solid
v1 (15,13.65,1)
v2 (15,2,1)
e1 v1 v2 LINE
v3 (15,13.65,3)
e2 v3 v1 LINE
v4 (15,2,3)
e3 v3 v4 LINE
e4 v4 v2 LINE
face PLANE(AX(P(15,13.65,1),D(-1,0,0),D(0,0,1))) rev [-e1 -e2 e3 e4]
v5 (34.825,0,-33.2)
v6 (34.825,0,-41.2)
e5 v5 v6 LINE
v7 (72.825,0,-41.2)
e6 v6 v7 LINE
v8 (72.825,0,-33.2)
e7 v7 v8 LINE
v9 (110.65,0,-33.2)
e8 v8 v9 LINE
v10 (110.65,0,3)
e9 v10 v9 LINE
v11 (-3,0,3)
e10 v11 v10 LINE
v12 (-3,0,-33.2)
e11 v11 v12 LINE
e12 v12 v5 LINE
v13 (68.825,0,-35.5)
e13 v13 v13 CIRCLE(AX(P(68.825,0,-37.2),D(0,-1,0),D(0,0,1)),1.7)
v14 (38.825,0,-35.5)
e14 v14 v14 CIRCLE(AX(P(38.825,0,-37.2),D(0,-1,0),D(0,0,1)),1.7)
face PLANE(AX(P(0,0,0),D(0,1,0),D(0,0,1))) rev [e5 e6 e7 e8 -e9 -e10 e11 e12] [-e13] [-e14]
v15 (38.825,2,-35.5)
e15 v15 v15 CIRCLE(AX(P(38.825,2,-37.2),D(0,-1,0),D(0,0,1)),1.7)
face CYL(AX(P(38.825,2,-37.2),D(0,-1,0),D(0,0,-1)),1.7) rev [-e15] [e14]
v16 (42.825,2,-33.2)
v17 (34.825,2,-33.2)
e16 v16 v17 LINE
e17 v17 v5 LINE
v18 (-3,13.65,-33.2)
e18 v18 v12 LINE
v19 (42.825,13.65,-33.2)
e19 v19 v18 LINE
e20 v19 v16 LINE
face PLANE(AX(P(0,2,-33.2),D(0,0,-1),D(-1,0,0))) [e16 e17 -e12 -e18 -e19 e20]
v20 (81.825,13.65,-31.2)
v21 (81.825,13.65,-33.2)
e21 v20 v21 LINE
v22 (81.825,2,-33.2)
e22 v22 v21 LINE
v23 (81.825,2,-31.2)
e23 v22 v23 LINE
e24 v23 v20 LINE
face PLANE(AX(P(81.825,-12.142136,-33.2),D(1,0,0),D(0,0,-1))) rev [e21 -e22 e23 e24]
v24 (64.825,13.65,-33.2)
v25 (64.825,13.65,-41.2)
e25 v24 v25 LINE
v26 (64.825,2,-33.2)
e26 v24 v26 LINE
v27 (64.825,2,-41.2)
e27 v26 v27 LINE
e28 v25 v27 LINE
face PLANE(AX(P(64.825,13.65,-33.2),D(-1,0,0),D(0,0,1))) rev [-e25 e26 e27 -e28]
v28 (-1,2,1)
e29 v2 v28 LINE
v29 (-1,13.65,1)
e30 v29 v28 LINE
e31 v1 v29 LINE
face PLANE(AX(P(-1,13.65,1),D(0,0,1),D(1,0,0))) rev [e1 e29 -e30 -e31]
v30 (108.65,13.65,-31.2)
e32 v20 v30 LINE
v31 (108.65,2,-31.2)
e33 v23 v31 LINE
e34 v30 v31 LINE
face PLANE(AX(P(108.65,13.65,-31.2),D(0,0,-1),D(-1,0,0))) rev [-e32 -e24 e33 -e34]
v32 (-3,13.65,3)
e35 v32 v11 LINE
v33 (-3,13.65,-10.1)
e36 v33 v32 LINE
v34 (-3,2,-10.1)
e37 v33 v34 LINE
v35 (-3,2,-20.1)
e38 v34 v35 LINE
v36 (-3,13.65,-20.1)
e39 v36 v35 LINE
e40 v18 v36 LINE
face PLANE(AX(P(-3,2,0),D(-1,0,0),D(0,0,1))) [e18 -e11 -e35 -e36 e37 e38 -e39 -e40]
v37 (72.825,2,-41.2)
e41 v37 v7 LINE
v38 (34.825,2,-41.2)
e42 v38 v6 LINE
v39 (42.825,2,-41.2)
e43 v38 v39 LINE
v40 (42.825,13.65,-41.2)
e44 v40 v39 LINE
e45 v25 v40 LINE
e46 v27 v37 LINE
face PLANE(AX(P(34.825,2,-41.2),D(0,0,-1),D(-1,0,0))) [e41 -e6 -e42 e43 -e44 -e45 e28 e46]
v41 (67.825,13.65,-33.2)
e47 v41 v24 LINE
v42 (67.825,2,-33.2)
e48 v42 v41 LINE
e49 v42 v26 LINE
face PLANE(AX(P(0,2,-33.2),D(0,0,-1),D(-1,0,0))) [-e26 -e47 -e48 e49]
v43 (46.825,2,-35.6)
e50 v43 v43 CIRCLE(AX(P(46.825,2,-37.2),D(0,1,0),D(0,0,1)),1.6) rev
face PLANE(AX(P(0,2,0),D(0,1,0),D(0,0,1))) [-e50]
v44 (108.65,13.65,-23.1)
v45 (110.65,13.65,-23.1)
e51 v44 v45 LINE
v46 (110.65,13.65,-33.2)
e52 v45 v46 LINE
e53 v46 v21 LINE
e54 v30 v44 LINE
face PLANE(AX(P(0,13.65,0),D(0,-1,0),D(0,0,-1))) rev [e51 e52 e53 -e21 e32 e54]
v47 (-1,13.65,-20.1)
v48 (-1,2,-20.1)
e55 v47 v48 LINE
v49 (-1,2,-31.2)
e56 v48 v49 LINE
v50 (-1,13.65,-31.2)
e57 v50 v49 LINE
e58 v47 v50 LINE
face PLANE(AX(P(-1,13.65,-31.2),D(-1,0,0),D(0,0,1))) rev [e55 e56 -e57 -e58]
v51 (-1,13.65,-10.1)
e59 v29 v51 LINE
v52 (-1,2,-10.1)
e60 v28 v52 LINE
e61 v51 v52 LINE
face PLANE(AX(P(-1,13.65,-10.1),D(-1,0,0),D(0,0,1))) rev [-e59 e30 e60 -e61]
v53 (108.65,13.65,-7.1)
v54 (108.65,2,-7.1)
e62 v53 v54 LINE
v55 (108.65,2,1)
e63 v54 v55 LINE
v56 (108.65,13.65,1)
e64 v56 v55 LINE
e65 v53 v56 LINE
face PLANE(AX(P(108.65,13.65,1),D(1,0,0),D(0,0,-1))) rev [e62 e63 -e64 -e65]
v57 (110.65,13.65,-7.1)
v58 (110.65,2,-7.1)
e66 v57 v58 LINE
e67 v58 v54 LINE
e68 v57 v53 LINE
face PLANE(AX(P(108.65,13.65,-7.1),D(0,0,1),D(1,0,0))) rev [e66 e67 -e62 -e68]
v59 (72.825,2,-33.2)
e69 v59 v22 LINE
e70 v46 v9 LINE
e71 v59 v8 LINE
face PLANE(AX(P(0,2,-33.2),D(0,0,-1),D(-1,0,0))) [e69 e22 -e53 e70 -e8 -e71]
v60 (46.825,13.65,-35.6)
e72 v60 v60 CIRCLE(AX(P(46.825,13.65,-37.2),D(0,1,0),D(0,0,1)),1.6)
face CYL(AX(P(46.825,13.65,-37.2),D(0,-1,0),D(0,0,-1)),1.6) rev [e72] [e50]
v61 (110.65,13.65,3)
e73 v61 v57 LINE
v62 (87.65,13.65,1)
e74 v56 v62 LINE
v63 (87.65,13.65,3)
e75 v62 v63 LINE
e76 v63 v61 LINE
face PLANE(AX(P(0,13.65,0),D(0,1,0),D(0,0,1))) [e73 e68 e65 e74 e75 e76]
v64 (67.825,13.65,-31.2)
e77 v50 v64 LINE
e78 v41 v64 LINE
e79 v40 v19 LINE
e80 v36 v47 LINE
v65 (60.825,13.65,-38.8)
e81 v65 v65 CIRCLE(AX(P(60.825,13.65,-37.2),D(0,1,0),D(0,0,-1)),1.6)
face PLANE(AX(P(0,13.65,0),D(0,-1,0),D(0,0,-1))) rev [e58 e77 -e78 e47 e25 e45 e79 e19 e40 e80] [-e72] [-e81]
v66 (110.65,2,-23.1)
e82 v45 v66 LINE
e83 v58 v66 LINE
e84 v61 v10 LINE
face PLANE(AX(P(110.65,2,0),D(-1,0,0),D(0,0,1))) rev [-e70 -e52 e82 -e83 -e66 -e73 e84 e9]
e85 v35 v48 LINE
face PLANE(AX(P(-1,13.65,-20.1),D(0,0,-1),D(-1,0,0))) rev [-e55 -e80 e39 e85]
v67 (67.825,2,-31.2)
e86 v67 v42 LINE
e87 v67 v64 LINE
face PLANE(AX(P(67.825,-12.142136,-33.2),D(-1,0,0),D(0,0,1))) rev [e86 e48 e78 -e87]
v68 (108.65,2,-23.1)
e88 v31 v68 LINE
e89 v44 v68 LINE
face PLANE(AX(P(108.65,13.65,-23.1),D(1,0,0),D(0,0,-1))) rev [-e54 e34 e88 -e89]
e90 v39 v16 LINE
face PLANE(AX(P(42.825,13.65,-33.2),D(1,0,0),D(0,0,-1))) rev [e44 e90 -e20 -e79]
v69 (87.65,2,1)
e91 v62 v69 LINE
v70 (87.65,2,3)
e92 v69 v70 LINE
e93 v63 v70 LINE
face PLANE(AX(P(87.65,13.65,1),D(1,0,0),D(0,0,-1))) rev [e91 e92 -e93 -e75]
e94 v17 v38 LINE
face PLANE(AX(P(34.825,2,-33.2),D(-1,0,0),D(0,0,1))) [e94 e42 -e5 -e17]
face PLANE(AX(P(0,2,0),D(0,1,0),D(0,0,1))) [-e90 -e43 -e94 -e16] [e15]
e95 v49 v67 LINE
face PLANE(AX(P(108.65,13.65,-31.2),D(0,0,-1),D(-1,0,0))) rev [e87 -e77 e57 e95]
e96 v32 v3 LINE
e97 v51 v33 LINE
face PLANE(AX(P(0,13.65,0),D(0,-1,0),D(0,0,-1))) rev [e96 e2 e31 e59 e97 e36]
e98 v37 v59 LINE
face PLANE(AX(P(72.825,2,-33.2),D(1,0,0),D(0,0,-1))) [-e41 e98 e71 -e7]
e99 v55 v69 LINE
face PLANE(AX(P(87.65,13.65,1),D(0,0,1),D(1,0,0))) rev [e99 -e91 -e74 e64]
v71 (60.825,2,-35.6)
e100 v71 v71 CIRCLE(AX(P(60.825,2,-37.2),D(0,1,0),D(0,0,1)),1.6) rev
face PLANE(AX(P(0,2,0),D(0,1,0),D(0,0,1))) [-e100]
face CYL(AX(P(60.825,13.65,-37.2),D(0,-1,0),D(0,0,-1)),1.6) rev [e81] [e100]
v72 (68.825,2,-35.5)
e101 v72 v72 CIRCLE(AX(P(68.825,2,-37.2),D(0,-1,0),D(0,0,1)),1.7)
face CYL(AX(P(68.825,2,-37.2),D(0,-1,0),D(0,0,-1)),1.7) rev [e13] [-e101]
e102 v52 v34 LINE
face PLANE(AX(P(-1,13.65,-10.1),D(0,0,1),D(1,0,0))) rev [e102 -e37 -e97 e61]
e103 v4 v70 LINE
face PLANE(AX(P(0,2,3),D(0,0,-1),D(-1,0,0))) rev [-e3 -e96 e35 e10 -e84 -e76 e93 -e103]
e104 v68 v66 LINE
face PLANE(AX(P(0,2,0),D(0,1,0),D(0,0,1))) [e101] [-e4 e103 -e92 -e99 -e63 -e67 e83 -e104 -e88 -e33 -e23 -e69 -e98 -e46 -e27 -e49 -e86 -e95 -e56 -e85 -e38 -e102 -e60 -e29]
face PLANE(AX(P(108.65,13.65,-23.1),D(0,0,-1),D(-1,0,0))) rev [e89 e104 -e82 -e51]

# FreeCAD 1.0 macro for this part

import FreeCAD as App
import Part
import Sketcher
from FreeCAD import Vector

doc = App.newDocument("Part")
params = doc.addObject("Spreadsheet::Sheet", "Params")
for row, (alias, value) in enumerate([
    ("sketch1_height", "36.2 mm"),
    ("sketch1_width", "113.65 mm"),
    ("pad1_length", "2 mm"),
    ("sketch2_width", "16 mm"),
    ("sketch2_width2", "2 mm"),
    ("sketch2_width3", "21 mm"),
    ("sketch2_height", "11.1 mm"),
    ("sketch2_height2", "8.1 mm"),
    ("pad2_length", "11.65 mm"),
    ("sketch3_diameter", "3.4 mm"),
    ("sketch3_width", "38 mm"),
    ("sketch3_height", "8 mm"),
    ("pad3_length", "2 mm"),
    ("sketch4_diameter", "3.2 mm"),
    ("sketch4_width", "22 mm"),
    ("sketch4_height", "8 mm"),
    ("pad4_length", "11.65 mm"),
    ("sketch5_width", "14 mm"),
    ("sketch5_height", "2 mm"),
    ("pocket1_length", "11.65 mm"),
], start=1):
    params.set(f"A{row}", alias)
    params.set(f"B{row}", "=" + value)
    params.setAlias(f"B{row}", alias)

body = doc.addObject("PartDesign::Body", "Body")

sketch1 = body.newObject("Sketcher::SketchObject", "Sketch")
sketch1.AttachmentSupport = (doc.getObject("XZ_Plane"), [""])
sketch1.MapMode = "FlatFace"
sketch1.addGeometry([
    Part.LineSegment(Vector(-3, -33, 0), Vector(-3, 3, 0)),
    Part.LineSegment(Vector(-3, 3, 0), Vector(111, 3, 0)),
    Part.LineSegment(Vector(111, 3, 0), Vector(111, -33, 0)),
    Part.LineSegment(Vector(111, -33, 0), Vector(-3, -33, 0)),
], False)
sketch1.addConstraint([
    Sketcher.Constraint("Coincident", 0, 2, 1, 1),
    Sketcher.Constraint("Coincident", 1, 2, 2, 1),
    Sketcher.Constraint("Coincident", 2, 2, 3, 1),
    Sketcher.Constraint("Coincident", 3, 2, 0, 1),
    Sketcher.Constraint("Vertical", 0),
    Sketcher.Constraint("Horizontal", 1),
    Sketcher.Constraint("Vertical", 2),
    Sketcher.Constraint("Horizontal", 3),
    Sketcher.Constraint("DistanceY", 0, 1, 0, 2, 36.2),
    Sketcher.Constraint("DistanceX", 0, 2, -1, 1, 3.0),
    Sketcher.Constraint("DistanceY", -1, 1, 0, 2, 3.0),
    Sketcher.Constraint("DistanceX", 1, 1, 1, 2, 113.65),
])
sketch1.setExpression("Constraints[8]", "Params.sketch1_height")
sketch1.setExpression("Constraints[11]", "Params.sketch1_width")
pad1 = body.newObject("PartDesign::Pad", "Pad")
pad1.Profile = sketch1
pad1.setExpression("Length", "Params.pad1_length")
pad1.Reversed = True

sketch2 = body.newObject("Sketcher::SketchObject", "Sketch001")
sketch2.AttachmentSupport = (doc.getObject("XZ_Plane"), [""])
sketch2.MapMode = "FlatFace"
sketch2.AttachmentOffset = App.Placement(Vector(0, 0, -2), App.Rotation())
sketch2.addGeometry([
    Part.LineSegment(Vector(15, 3, 0), Vector(15, 1, 0)),
    Part.LineSegment(Vector(15, 1, 0), Vector(-1, 1, 0)),
    Part.LineSegment(Vector(-1, 1, 0), Vector(-1, -10.1, 0)),
    Part.LineSegment(Vector(-1, -10.1, 0), Vector(-3, -10.1, 0)),
    Part.LineSegment(Vector(-3, -10.1, 0), Vector(-3, 3, 0)),
    Part.LineSegment(Vector(-3, 3, 0), Vector(15, 3, 0)),
    Part.LineSegment(Vector(-3, -20.1, 0), Vector(-1, -20.1, 0)),
    Part.LineSegment(Vector(-1, -20.1, 0), Vector(-1, -31.2, 0)),
    Part.LineSegment(Vector(-1, -31.2, 0), Vector(108.7, -31.2, 0)),
    Part.LineSegment(Vector(108.7, -31.2, 0), Vector(108.7, -23.1, 0)),
    Part.LineSegment(Vector(108.7, -23.1, 0), Vector(110.7, -23.1, 0)),
    Part.LineSegment(Vector(110.7, -23.1, 0), Vector(110.7, -33.2, 0)),
    Part.LineSegment(Vector(110.7, -33.2, 0), Vector(-3, -33.2, 0)),
    Part.LineSegment(Vector(-3, -33.2, 0), Vector(-3, -20.1, 0)),
    Part.LineSegment(Vector(108.7, -7.1, 0), Vector(108.7, 1, 0)),
    Part.LineSegment(Vector(108.7, 1, 0), Vector(87.7, 1, 0)),
    Part.LineSegment(Vector(87.7, 1, 0), Vector(87.7, 3, 0)),
    Part.LineSegment(Vector(87.7, 3, 0), Vector(110.7, 3, 0)),
    Part.LineSegment(Vector(110.7, 3, 0), Vector(110.7, -7.1, 0)),
    Part.LineSegment(Vector(110.7, -7.1, 0), Vector(108.7, -7.1, 0)),
], False)
sketch2.addConstraint([
    Sketcher.Constraint("Coincident", 0, 2, 1, 1),
    Sketcher.Constraint("Coincident", 1, 2, 2, 1),
    Sketcher.Constraint("Coincident", 2, 2, 3, 1),
    Sketcher.Constraint("Coincident", 3, 2, 4, 1),
    Sketcher.Constraint("Coincident", 4, 2, 5, 1),
    Sketcher.Constraint("Coincident", 5, 2, 0, 1),
    Sketcher.Constraint("Coincident", 6, 2, 7, 1),
    Sketcher.Constraint("Coincident", 7, 2, 8, 1),
    Sketcher.Constraint("Coincident", 8, 2, 9, 1),
    Sketcher.Constraint("Coincident", 9, 2, 10, 1),
    Sketcher.Constraint("Coincident", 10, 2, 11, 1),
    Sketcher.Constraint("Coincident", 11, 2, 12, 1),
    Sketcher.Constraint("Coincident", 12, 2, 13, 1),
    Sketcher.Constraint("Coincident", 13, 2, 6, 1),
    Sketcher.Constraint("Coincident", 14, 2, 15, 1),
    Sketcher.Constraint("Coincident", 15, 2, 16, 1),
    Sketcher.Constraint("Coincident", 16, 2, 17, 1),
    Sketcher.Constraint("Coincident", 17, 2, 18, 1),
    Sketcher.Constraint("Coincident", 18, 2, 19, 1),
    Sketcher.Constraint("Coincident", 19, 2, 14, 1),
    Sketcher.Constraint("Vertical", 0),
    Sketcher.Constraint("Horizontal", 1),
    Sketcher.Constraint("Vertical", 2),
    Sketcher.Constraint("Horizontal", 3),
    Sketcher.Constraint("Vertical", 4),
    Sketcher.Constraint("Horizontal", 5),
    Sketcher.Constraint("Horizontal", 6),
    Sketcher.Constraint("Vertical", 7),
    Sketcher.Constraint("Horizontal", 8),
    Sketcher.Constraint("Vertical", 9),
    Sketcher.Constraint("Horizontal", 10),
    Sketcher.Constraint("Vertical", 11),
    Sketcher.Constraint("Horizontal", 12),
    Sketcher.Constraint("Vertical", 13),
    Sketcher.Constraint("Vertical", 14),
    Sketcher.Constraint("Horizontal", 15),
    Sketcher.Constraint("Vertical", 16),
    Sketcher.Constraint("Horizontal", 17),
    Sketcher.Constraint("Vertical", 18),
    Sketcher.Constraint("Horizontal", 19),
    Sketcher.Constraint("Horizontal", 1, 2, 14, 2),
    Sketcher.Constraint("Horizontal", 5, 2, 16, 2),
    Sketcher.Constraint("Vertical", 2, 2, 6, 2),
    Sketcher.Constraint("Vertical", 4, 2, 12, 2),
    Sketcher.Constraint("Vertical", 9, 2, 14, 2),
    Sketcher.Constraint("Vertical", 11, 2, 17, 2),
    Sketcher.Constraint("Equal", 6, 10),
    Sketcher.Constraint("Equal", 19, 0),
    Sketcher.Constraint("Equal", 2, 7),
    Sketcher.Constraint("Equal", 4, 13),
    Sketcher.Constraint("Equal", 9, 14),
    Sketcher.Constraint("DistanceX", 1, 2, 1, 1, 16.0),
    Sketcher.Constraint("DistanceX", 3, 2, 3, 1, 2.0),
    Sketcher.Constraint("DistanceX", 15, 2, 15, 1, 21.0),
    Sketcher.Constraint("DistanceY", 2, 2, 2, 1, 11.1),
    Sketcher.Constraint("DistanceY", 9, 1, 9, 2, 8.1),
    Sketcher.Constraint("DistanceX", -1, 1, 0, 2, 15.0),
    Sketcher.Constraint("DistanceY", -1, 1, 0, 2, 1.0),
    Sketcher.Constraint("DistanceY", 6, 2, 2, 2, 10.0),
    Sketcher.Constraint("DistanceX", 8, 1, 8, 2, 109.65),
])
sketch2.setExpression("Constraints[51]", "Params.sketch2_width")
sketch2.setExpression("Constraints[52]", "Params.sketch2_width2")
sketch2.setExpression("Constraints[53]", "Params.sketch2_width3")
sketch2.setExpression("Constraints[54]", "Params.sketch2_height")
sketch2.setExpression("Constraints[55]", "Params.sketch2_height2")
pad2 = body.newObject("PartDesign::Pad", "Pad001")
pad2.Profile = sketch2
pad2.setExpression("Length", "Params.pad2_length")
pad2.Reversed = True

sketch3 = body.newObject("Sketcher::SketchObject", "Sketch002")
sketch3.AttachmentSupport = (doc.getObject("XZ_Plane"), [""])
sketch3.MapMode = "FlatFace"
sketch3.addGeometry([
    Part.LineSegment(Vector(34.8, -33.2, 0), Vector(34.8, -41.2, 0)),
    Part.LineSegment(Vector(34.8, -41.2, 0), Vector(72.8, -41.2, 0)),
    Part.LineSegment(Vector(72.8, -41.2, 0), Vector(72.8, -33.2, 0)),
    Part.LineSegment(Vector(72.8, -33.2, 0), Vector(34.8, -33.2, 0)),
    Part.Circle(Vector(38.8, -37.2, 0), Vector(0, 0, 1), 1.7),
    Part.Circle(Vector(68.8, -37.2, 0), Vector(0, 0, 1), 1.7),
], False)
sketch3.addConstraint([
    Sketcher.Constraint("Coincident", 0, 2, 1, 1),
    Sketcher.Constraint("Coincident", 1, 2, 2, 1),
    Sketcher.Constraint("Coincident", 2, 2, 3, 1),
    Sketcher.Constraint("Coincident", 3, 2, 0, 1),
    Sketcher.Constraint("Vertical", 0),
    Sketcher.Constraint("Horizontal", 1),
    Sketcher.Constraint("Vertical", 2),
    Sketcher.Constraint("Horizontal", 3),
    Sketcher.Constraint("Equal", 4, 5),
    Sketcher.Constraint("Horizontal", 4, 3, 5, 3),
    Sketcher.Constraint("Diameter", 4, 3.4),
    Sketcher.Constraint("DistanceX", 1, 1, 1, 2, 38.0),
    Sketcher.Constraint("DistanceY", 0, 2, 0, 1, 8.0),
    Sketcher.Constraint("DistanceX", 4, 3, 5, 3, 30.0),
    Sketcher.Constraint("DistanceX", 0, 2, 4, 3, 4.0),
    Sketcher.Constraint("DistanceY", 0, 2, 4, 3, 4.0),
    Sketcher.Constraint("DistanceY", 4, 3, -1, 1, 37.2),
    Sketcher.Constraint("DistanceX", -1, 1, 4, 3, 38.825),
])
sketch3.setExpression("Constraints[10]", "Params.sketch3_diameter")
sketch3.setExpression("Constraints[11]", "Params.sketch3_width")
sketch3.setExpression("Constraints[12]", "Params.sketch3_height")
pad3 = body.newObject("PartDesign::Pad", "Pad002")
pad3.Profile = sketch3
pad3.setExpression("Length", "Params.pad3_length")
pad3.Reversed = True

sketch4 = body.newObject("Sketcher::SketchObject", "Sketch003")
sketch4.AttachmentSupport = (doc.getObject("XZ_Plane"), [""])
sketch4.MapMode = "FlatFace"
sketch4.AttachmentOffset = App.Placement(Vector(0, 0, -2), App.Rotation())
sketch4.addGeometry([
    Part.LineSegment(Vector(42.8, -41.2, 0), Vector(42.8, -33.2, 0)),
    Part.LineSegment(Vector(42.8, -33.2, 0), Vector(64.8, -33.2, 0)),
    Part.LineSegment(Vector(64.8, -33.2, 0), Vector(64.8, -41.2, 0)),
    Part.LineSegment(Vector(64.8, -41.2, 0), Vector(42.8, -41.2, 0)),
    Part.Circle(Vector(46.8, -37.2, 0), Vector(0, 0, 1), 1.6),
    Part.Circle(Vector(60.8, -37.2, 0), Vector(0, 0, 1), 1.6),
], False)
sketch4.addConstraint([
    Sketcher.Constraint("Coincident", 0, 2, 1, 1),
    Sketcher.Constraint("Coincident", 1, 2, 2, 1),
    Sketcher.Constraint("Coincident", 2, 2, 3, 1),
    Sketcher.Constraint("Coincident", 3, 2, 0, 1),
    Sketcher.Constraint("Vertical", 0),
    Sketcher.Constraint("Horizontal", 1),
    Sketcher.Constraint("Vertical", 2),
    Sketcher.Constraint("Horizontal", 3),
    Sketcher.Constraint("Equal", 4, 5),
    Sketcher.Constraint("Horizontal", 4, 3, 5, 3),
    Sketcher.Constraint("Diameter", 4, 3.2),
    Sketcher.Constraint("DistanceX", 1, 1, 1, 2, 22.0),
    Sketcher.Constraint("DistanceY", 0, 1, 0, 2, 8.0),
    Sketcher.Constraint("DistanceX", 4, 3, 5, 3, 14.0),
    Sketcher.Constraint("DistanceX", 0, 2, 4, 3, 4.0),
    Sketcher.Constraint("DistanceY", 4, 3, 0, 2, 4.0),
    Sketcher.Constraint("DistanceY", 4, 3, -1, 1, 37.2),
    Sketcher.Constraint("DistanceX", -1, 1, 4, 3, 46.825),
])
sketch4.setExpression("Constraints[10]", "Params.sketch4_diameter")
sketch4.setExpression("Constraints[11]", "Params.sketch4_width")
sketch4.setExpression("Constraints[12]", "Params.sketch4_height")
pad4 = body.newObject("PartDesign::Pad", "Pad003")
pad4.Profile = sketch4
pad4.setExpression("Length", "Params.pad4_length")
pad4.Reversed = True

sketch5 = body.newObject("Sketcher::SketchObject", "Sketch004")
sketch5.AttachmentSupport = (doc.getObject("XZ_Plane"), [""])
sketch5.MapMode = "FlatFace"
sketch5.AttachmentOffset = App.Placement(Vector(0, 0, -13.65), App.Rotation())
sketch5.addGeometry([
    Part.LineSegment(Vector(67.8, -33.2, 0), Vector(67.8, -31.2, 0)),
    Part.LineSegment(Vector(67.8, -31.2, 0), Vector(81.8, -31.2, 0)),
    Part.LineSegment(Vector(81.8, -31.2, 0), Vector(81.8, -33.2, 0)),
    Part.LineSegment(Vector(81.8, -33.2, 0), Vector(67.8, -33.2, 0)),
], False)
sketch5.addConstraint([
    Sketcher.Constraint("Coincident", 0, 2, 1, 1),
    Sketcher.Constraint("Coincident", 1, 2, 2, 1),
    Sketcher.Constraint("Coincident", 2, 2, 3, 1),
    Sketcher.Constraint("Coincident", 3, 2, 0, 1),
    Sketcher.Constraint("Vertical", 0),
    Sketcher.Constraint("Horizontal", 1),
    Sketcher.Constraint("Vertical", 2),
    Sketcher.Constraint("Horizontal", 3),
    Sketcher.Constraint("DistanceX", 1, 1, 1, 2, 14.0),
    Sketcher.Constraint("DistanceY", 0, 1, 0, 2, 2.0),
    Sketcher.Constraint("DistanceY", 0, 2, -1, 1, 31.2),
    Sketcher.Constraint("DistanceX", -1, 1, 0, 2, 67.825),
])
sketch5.setExpression("Constraints[8]", "Params.sketch5_width")
sketch5.setExpression("Constraints[9]", "Params.sketch5_height")
pocket1 = body.newObject("PartDesign::Pocket", "Pocket")
pocket1.Profile = sketch5
pocket1.setExpression("Length", "Params.pocket1_length")
pocket1.Reversed = True

doc.recompute()
